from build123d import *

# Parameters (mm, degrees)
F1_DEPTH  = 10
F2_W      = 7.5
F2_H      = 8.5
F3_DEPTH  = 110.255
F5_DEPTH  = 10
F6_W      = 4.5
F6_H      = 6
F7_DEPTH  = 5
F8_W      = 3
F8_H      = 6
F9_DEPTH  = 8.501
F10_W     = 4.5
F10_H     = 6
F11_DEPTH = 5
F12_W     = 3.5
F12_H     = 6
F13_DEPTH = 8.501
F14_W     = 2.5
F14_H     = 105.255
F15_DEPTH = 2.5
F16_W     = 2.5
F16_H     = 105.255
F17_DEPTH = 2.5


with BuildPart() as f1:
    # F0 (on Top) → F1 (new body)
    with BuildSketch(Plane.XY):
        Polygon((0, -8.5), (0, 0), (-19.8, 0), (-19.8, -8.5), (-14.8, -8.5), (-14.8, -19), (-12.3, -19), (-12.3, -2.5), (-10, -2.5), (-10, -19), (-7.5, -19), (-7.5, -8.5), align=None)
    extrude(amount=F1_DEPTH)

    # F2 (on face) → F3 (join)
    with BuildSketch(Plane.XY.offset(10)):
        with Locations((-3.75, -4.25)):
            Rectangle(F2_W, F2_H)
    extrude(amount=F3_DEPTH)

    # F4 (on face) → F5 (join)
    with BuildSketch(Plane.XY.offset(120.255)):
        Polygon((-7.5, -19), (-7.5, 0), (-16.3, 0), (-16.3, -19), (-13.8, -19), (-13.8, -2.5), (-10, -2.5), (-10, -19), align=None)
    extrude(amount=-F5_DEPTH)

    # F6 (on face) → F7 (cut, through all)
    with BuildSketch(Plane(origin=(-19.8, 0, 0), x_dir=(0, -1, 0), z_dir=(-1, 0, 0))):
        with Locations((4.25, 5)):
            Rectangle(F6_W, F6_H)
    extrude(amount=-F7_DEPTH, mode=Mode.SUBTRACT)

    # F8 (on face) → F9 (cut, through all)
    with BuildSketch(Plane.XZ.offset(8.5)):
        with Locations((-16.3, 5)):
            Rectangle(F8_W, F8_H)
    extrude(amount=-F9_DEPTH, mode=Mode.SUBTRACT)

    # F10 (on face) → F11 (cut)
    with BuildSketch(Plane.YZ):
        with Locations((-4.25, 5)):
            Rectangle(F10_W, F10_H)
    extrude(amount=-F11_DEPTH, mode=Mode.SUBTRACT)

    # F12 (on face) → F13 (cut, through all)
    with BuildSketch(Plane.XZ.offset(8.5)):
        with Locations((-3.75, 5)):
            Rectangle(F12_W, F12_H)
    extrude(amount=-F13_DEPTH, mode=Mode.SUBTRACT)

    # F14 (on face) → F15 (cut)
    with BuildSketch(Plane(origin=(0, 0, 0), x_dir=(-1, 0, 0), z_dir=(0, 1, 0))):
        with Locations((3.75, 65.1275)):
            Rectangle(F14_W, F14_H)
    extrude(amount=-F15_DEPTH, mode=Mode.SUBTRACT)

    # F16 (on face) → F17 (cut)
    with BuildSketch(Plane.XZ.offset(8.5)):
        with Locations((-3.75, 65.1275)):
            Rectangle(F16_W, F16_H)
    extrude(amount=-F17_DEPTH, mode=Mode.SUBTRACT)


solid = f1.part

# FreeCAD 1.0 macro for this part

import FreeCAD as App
import Part
import Sketcher

V = App.Vector
Q = App.Units.Quantity


def add_polygon(sketch, points):
    """Adds a closed chain of lines whose ends are joined by coincident constraints."""
    first, n = sketch.GeometryCount, len(points)
    for a, b in zip(points, points[1:] + points[:1]):
        sketch.addGeometry(Part.LineSegment(App.Vector(*a, 0), App.Vector(*b, 0)), False)
    for i in range(n):
        sketch.addConstraint(Sketcher.Constraint("Coincident", first + i, 2, first + (i + 1) % n, 1))

doc = App.newDocument("Part")
body = doc.addObject("PartDesign::Body", "Body")

# Sketch on XY plane
sketch1 = body.newObject("Sketcher::SketchObject", "Sketch")
sketch1.AttachmentSupport = (doc.getObject("XY_Plane"), [""])
sketch1.MapMode = "FlatFace"
add_polygon(sketch1, [(0, -8.5), (0, 0), (-19.8, 0), (-19.8, -8.5), (-14.8, -8.5), (-14.8, -19), (-12.3, -19), (-12.3, -2.5), (-10, -2.5), (-10, -19), (-7.5, -19), (-7.5, -8.5)])  # lines 0-11
sketch1.addConstraint([
    Sketcher.Constraint("Vertical", 0),
    Sketcher.Constraint("Horizontal", 1),
    Sketcher.Constraint("Vertical", 2),
    Sketcher.Constraint("Horizontal", 3),
    Sketcher.Constraint("Vertical", 4),
    Sketcher.Constraint("Horizontal", 5),
    Sketcher.Constraint("Vertical", 6),
    Sketcher.Constraint("Horizontal", 7),
    Sketcher.Constraint("Vertical", 8),
    Sketcher.Constraint("Horizontal", 9),
    Sketcher.Constraint("Vertical", 10),
    Sketcher.Constraint("Horizontal", 11),
    Sketcher.Constraint("Coincident", 0, 2, -1, 1),
    Sketcher.Constraint("Horizontal", 5, 2, 8, 2),
    Sketcher.Constraint("Horizontal", 3, 2, 10, 2),
    Sketcher.Constraint("Equal", 5, 9),
    Sketcher.Constraint("DistanceX", 3, 1, 3, 2, Q("5 mm")),
    Sketcher.Constraint("DistanceX", 1, 2, 1, 1, Q("19.8 mm")),
    Sketcher.Constraint("DistanceX", 5, 1, 5, 2, Q("2.5 mm")),
    Sketcher.Constraint("DistanceX", 7, 1, 7, 2, Q("2.3 mm")),
    Sketcher.Constraint("DistanceY", 0, 1, 0, 2, Q("8.5 mm")),
    Sketcher.Constraint("DistanceY", 4, 2, 4, 1, Q("10.5 mm")),
    Sketcher.Constraint("DistanceY", 6, 1, 6, 2, Q("16.5 mm")),
])
pad1 = body.newObject("PartDesign::Pad", "Pad")
pad1.Profile = sketch1
pad1.Length = 10

# Sketch on XY plane
sketch2 = body.newObject("Sketcher::SketchObject", "Sketch001")
sketch2.AttachmentSupport = (doc.getObject("XY_Plane"), [""])
sketch2.MapMode = "FlatFace"
sketch2.AttachmentOffset = App.Placement(V(0, 0, 10), App.Rotation())
add_polygon(sketch2, [(-8, 0), (-8, -8), (0, -8), (0, 0)])  # lines 0-3
sketch2.addConstraint([
    Sketcher.Constraint("Vertical", 0),
    Sketcher.Constraint("Horizontal", 1),
    Sketcher.Constraint("Vertical", 2),
    Sketcher.Constraint("Horizontal", 3),
    Sketcher.Constraint("Coincident", 2, 2, -1, 1),
    Sketcher.Constraint("DistanceX", 1, 1, 1, 2, Q("7.5 mm")),
    Sketcher.Constraint("DistanceY", 0, 2, 0, 1, Q("8.5 mm")),
])
pad2 = body.newObject("PartDesign::Pad", "Pad001")
pad2.Profile = sketch2
pad2.Length = 110.255

# Sketch on XY plane
sketch3 = body.newObject("Sketcher::SketchObject", "Sketch002")
sketch3.AttachmentSupport = (doc.getObject("XY_Plane"), [""])
sketch3.MapMode = "FlatFace"
sketch3.AttachmentOffset = App.Placement(V(0, 0, 120.255), App.Rotation())
add_polygon(sketch3, [(-7.5, -19), (-7.5, 0), (-16.3, 0), (-16.3, -19), (-13.8, -19), (-13.8, -2.5), (-10, -2.5), (-10, -19)])  # lines 0-7
sketch3.addConstraint([
    Sketcher.Constraint("Vertical", 0),
    Sketcher.Constraint("Horizontal", 1),
    Sketcher.Constraint("Vertical", 2),
    Sketcher.Constraint("Horizontal", 3),
    Sketcher.Constraint("Vertical", 4),
    Sketcher.Constraint("Horizontal", 5),
    Sketcher.Constraint("Vertical", 6),
    Sketcher.Constraint("Horizontal", 7),
    Sketcher.Constraint("PointOnObject", 0, 2, -1),
    Sketcher.Constraint("Horizontal", 3, 2, 6, 2),
    Sketcher.Constraint("Equal", 3, 7),
    Sketcher.Constraint("DistanceY", 0, 1, 0, 2, Q("19 mm")),
    Sketcher.Constraint("DistanceX", 1, 2, 1, 1, Q("8.8 mm")),
    Sketcher.Constraint("DistanceX", 3, 1, 3, 2, Q("2.5 mm")),
    Sketcher.Constraint("DistanceY", 4, 1, 4, 2, Q("16.5 mm")),
    Sketcher.Constraint("DistanceX", 5, 2, -1, 1, Q("10 mm")),
])
pad3 = body.newObject("PartDesign::Pad", "Pad002")
pad3.Profile = sketch3
pad3.Length = 10
pad3.Reversed = True

# Sketch on YZ plane
sketch4 = body.newObject("Sketcher::SketchObject", "Sketch003")
sketch4.AttachmentSupport = (doc.getObject("YZ_Plane"), [""])
sketch4.MapMode = "FlatFace"
sketch4.AttachmentOffset = App.Placement(V(0, 0, -19.8), App.Rotation())
add_polygon(sketch4, [(-2, 8), (-2, 2), (-6.5, 2), (-6.5, 8)])  # lines 0-3
sketch4.addConstraint([
    Sketcher.Constraint("Vertical", 0),
    Sketcher.Constraint("Horizontal", 1),
    Sketcher.Constraint("Vertical", 2),
    Sketcher.Constraint("Horizontal", 3),
    Sketcher.Constraint("DistanceY", 0, 2, 0, 1, Q("6 mm")),
    Sketcher.Constraint("DistanceX", 1, 2, 1, 1, Q("4.5 mm")),
    Sketcher.Constraint("DistanceX", 0, 2, -1, 1, Q("2 mm")),
    Sketcher.Constraint("DistanceY", -1, 1, 0, 2, Q("2 mm")),
])
pocket1 = body.newObject("PartDesign::Pocket", "Pocket")
pocket1.Profile = sketch4
pocket1.Length = 5
pocket1.Reversed = True

# Sketch on XZ plane
sketch5 = body.newObject("Sketcher::SketchObject", "Sketch004")
sketch5.AttachmentSupport = (doc.getObject("XZ_Plane"), [""])
sketch5.MapMode = "FlatFace"
sketch5.AttachmentOffset = App.Placement(V(0, 0, 8.5), App.Rotation())
add_polygon(sketch5, [(-17.8, 8), (-17.8, 2), (-14.8, 2), (-14.8, 8)])  # lines 0-3
sketch5.addConstraint([
    Sketcher.Constraint("Vertical", 0),
    Sketcher.Constraint("Horizontal", 1),
    Sketcher.Constraint("Vertical", 2),
    Sketcher.Constraint("Horizontal", 3),
    Sketcher.Constraint("DistanceX", 1, 1, 1, 2, Q("3 mm")),
    Sketcher.Constraint("DistanceY", 0, 2, 0, 1, Q("6 mm")),
    Sketcher.Constraint("DistanceY", -1, 1, 0, 2, Q("2 mm")),
    Sketcher.Constraint("DistanceX", 0, 2, -1, 1, Q("17.8 mm")),
])
pocket2 = body.newObject("PartDesign::Pocket", "Pocket001")
pocket2.Profile = sketch5
pocket2.Type = "ThroughAll"

# Sketch on YZ plane
sketch6 = body.newObject("Sketcher::SketchObject", "Sketch005")
sketch6.AttachmentSupport = (doc.getObject("YZ_Plane"), [""])
sketch6.MapMode = "FlatFace"
add_polygon(sketch6, [(-6.5, 8), (-6.5, 2), (-2, 2), (-2, 8)])  # lines 0-3
sketch6.addConstraint([
    Sketcher.Constraint("Vertical", 0),
    Sketcher.Constraint("Horizontal", 1),
    Sketcher.Constraint("Vertical", 2),
    Sketcher.Constraint("Horizontal", 3),
    Sketcher.Constraint("DistanceY", 0, 2, 0, 1, Q("6 mm")),
    Sketcher.Constraint("DistanceX", 1, 1, 1, 2, Q("4.5 mm")),
    Sketcher.Constraint("DistanceY", -1, 1, 0, 2, Q("2 mm")),
    Sketcher.Constraint("DistanceX", 1, 2, -1, 1, Q("2 mm")),
])
pocket3 = body.newObject("PartDesign::Pocket", "Pocket002")
pocket3.Profile = sketch6
pocket3.Length = 5

# Sketch on XZ plane
sketch7 = body.newObject("Sketcher::SketchObject", "Sketch006")
sketch7.AttachmentSupport = (doc.getObject("XZ_Plane"), [""])
sketch7.MapMode = "FlatFace"
sketch7.AttachmentOffset = App.Placement(V(0, 0, 8.5), App.Rotation())
add_polygon(sketch7, [(-5.5, 8), (-5.5, 2), (-2, 2), (-2, 8)])  # lines 0-3
sketch7.addConstraint([
    Sketcher.Constraint("Vertical", 0),
    Sketcher.Constraint("Horizontal", 1),
    Sketcher.Constraint("Vertical", 2),
    Sketcher.Constraint("Horizontal", 3),
    Sketcher.Constraint("DistanceY", 0, 2, 0, 1, Q("6 mm")),
    Sketcher.Constraint("DistanceX", 1, 1, 1, 2, Q("3.5 mm")),
    Sketcher.Constraint("DistanceY", -1, 1, 0, 2, Q("2 mm")),
    Sketcher.Constraint("DistanceX", 1, 2, -1, 1, Q("2 mm")),
])
pocket4 = body.newObject("PartDesign::Pocket", "Pocket003")
pocket4.Profile = sketch7
pocket4.Type = "ThroughAll"

# Sketch on XZ plane
sketch8 = body.newObject("Sketcher::SketchObject", "Sketch007")
sketch8.AttachmentSupport = (doc.getObject("XZ_Plane"), [""])
sketch8.MapMode = "FlatFace"
add_polygon(sketch8, [(-2.5, 117.8), (-2.5, 12.5), (-5, 12.5), (-5, 117.8)])  # lines 0-3
sketch8.addConstraint([
    Sketcher.Constraint("Vertical", 0),
    Sketcher.Constraint("Horizontal", 1),
    Sketcher.Constraint("Vertical", 2),
    Sketcher.Constraint("Horizontal", 3),
    Sketcher.Constraint("DistanceX", 1, 2, 1, 1, Q("2.5 mm")),
    Sketcher.Constraint("DistanceX", 1, 2, -1, 1, Q("5 mm")),
    Sketcher.Constraint("DistanceY", -1, 1, 0, 2, Q("12.5 mm")),
    Sketcher.Constraint("DistanceY", 0, 2, 0, 1, Q("105.255 mm")),
])
pocket5 = body.newObject("PartDesign::Pocket", "Pocket004")
pocket5.Profile = sketch8
pocket5.Length = 2.5
pocket5.Reversed = True

# Sketch on XZ plane
sketch9 = body.newObject("Sketcher::SketchObject", "Sketch008")
sketch9.AttachmentSupport = (doc.getObject("XZ_Plane"), [""])
sketch9.MapMode = "FlatFace"
sketch9.AttachmentOffset = App.Placement(V(0, 0, 8.5), App.Rotation())
add_polygon(sketch9, [(-5, 117.8), (-5, 12.5), (-2.5, 12.5), (-2.5, 117.8)])  # lines 0-3
sketch9.addConstraint([
    Sketcher.Constraint("Vertical", 0),
    Sketcher.Constraint("Horizontal", 1),
    Sketcher.Constraint("Vertical", 2),
    Sketcher.Constraint("Horizontal", 3),
    Sketcher.Constraint("DistanceX", 1, 1, 1, 2, Q("2.5 mm")),
    Sketcher.Constraint("DistanceX", 0, 2, -1, 1, Q("5 mm")),
    Sketcher.Constraint("DistanceY", -1, 1, 0, 2, Q("12.5 mm")),
    Sketcher.Constraint("DistanceY", 0, 2, 0, 1, Q("105.255 mm")),
])
pocket6 = body.newObject("PartDesign::Pocket", "Pocket005")
pocket6.Profile = sketch9
pocket6.Length = 2.5

doc.recompute()
